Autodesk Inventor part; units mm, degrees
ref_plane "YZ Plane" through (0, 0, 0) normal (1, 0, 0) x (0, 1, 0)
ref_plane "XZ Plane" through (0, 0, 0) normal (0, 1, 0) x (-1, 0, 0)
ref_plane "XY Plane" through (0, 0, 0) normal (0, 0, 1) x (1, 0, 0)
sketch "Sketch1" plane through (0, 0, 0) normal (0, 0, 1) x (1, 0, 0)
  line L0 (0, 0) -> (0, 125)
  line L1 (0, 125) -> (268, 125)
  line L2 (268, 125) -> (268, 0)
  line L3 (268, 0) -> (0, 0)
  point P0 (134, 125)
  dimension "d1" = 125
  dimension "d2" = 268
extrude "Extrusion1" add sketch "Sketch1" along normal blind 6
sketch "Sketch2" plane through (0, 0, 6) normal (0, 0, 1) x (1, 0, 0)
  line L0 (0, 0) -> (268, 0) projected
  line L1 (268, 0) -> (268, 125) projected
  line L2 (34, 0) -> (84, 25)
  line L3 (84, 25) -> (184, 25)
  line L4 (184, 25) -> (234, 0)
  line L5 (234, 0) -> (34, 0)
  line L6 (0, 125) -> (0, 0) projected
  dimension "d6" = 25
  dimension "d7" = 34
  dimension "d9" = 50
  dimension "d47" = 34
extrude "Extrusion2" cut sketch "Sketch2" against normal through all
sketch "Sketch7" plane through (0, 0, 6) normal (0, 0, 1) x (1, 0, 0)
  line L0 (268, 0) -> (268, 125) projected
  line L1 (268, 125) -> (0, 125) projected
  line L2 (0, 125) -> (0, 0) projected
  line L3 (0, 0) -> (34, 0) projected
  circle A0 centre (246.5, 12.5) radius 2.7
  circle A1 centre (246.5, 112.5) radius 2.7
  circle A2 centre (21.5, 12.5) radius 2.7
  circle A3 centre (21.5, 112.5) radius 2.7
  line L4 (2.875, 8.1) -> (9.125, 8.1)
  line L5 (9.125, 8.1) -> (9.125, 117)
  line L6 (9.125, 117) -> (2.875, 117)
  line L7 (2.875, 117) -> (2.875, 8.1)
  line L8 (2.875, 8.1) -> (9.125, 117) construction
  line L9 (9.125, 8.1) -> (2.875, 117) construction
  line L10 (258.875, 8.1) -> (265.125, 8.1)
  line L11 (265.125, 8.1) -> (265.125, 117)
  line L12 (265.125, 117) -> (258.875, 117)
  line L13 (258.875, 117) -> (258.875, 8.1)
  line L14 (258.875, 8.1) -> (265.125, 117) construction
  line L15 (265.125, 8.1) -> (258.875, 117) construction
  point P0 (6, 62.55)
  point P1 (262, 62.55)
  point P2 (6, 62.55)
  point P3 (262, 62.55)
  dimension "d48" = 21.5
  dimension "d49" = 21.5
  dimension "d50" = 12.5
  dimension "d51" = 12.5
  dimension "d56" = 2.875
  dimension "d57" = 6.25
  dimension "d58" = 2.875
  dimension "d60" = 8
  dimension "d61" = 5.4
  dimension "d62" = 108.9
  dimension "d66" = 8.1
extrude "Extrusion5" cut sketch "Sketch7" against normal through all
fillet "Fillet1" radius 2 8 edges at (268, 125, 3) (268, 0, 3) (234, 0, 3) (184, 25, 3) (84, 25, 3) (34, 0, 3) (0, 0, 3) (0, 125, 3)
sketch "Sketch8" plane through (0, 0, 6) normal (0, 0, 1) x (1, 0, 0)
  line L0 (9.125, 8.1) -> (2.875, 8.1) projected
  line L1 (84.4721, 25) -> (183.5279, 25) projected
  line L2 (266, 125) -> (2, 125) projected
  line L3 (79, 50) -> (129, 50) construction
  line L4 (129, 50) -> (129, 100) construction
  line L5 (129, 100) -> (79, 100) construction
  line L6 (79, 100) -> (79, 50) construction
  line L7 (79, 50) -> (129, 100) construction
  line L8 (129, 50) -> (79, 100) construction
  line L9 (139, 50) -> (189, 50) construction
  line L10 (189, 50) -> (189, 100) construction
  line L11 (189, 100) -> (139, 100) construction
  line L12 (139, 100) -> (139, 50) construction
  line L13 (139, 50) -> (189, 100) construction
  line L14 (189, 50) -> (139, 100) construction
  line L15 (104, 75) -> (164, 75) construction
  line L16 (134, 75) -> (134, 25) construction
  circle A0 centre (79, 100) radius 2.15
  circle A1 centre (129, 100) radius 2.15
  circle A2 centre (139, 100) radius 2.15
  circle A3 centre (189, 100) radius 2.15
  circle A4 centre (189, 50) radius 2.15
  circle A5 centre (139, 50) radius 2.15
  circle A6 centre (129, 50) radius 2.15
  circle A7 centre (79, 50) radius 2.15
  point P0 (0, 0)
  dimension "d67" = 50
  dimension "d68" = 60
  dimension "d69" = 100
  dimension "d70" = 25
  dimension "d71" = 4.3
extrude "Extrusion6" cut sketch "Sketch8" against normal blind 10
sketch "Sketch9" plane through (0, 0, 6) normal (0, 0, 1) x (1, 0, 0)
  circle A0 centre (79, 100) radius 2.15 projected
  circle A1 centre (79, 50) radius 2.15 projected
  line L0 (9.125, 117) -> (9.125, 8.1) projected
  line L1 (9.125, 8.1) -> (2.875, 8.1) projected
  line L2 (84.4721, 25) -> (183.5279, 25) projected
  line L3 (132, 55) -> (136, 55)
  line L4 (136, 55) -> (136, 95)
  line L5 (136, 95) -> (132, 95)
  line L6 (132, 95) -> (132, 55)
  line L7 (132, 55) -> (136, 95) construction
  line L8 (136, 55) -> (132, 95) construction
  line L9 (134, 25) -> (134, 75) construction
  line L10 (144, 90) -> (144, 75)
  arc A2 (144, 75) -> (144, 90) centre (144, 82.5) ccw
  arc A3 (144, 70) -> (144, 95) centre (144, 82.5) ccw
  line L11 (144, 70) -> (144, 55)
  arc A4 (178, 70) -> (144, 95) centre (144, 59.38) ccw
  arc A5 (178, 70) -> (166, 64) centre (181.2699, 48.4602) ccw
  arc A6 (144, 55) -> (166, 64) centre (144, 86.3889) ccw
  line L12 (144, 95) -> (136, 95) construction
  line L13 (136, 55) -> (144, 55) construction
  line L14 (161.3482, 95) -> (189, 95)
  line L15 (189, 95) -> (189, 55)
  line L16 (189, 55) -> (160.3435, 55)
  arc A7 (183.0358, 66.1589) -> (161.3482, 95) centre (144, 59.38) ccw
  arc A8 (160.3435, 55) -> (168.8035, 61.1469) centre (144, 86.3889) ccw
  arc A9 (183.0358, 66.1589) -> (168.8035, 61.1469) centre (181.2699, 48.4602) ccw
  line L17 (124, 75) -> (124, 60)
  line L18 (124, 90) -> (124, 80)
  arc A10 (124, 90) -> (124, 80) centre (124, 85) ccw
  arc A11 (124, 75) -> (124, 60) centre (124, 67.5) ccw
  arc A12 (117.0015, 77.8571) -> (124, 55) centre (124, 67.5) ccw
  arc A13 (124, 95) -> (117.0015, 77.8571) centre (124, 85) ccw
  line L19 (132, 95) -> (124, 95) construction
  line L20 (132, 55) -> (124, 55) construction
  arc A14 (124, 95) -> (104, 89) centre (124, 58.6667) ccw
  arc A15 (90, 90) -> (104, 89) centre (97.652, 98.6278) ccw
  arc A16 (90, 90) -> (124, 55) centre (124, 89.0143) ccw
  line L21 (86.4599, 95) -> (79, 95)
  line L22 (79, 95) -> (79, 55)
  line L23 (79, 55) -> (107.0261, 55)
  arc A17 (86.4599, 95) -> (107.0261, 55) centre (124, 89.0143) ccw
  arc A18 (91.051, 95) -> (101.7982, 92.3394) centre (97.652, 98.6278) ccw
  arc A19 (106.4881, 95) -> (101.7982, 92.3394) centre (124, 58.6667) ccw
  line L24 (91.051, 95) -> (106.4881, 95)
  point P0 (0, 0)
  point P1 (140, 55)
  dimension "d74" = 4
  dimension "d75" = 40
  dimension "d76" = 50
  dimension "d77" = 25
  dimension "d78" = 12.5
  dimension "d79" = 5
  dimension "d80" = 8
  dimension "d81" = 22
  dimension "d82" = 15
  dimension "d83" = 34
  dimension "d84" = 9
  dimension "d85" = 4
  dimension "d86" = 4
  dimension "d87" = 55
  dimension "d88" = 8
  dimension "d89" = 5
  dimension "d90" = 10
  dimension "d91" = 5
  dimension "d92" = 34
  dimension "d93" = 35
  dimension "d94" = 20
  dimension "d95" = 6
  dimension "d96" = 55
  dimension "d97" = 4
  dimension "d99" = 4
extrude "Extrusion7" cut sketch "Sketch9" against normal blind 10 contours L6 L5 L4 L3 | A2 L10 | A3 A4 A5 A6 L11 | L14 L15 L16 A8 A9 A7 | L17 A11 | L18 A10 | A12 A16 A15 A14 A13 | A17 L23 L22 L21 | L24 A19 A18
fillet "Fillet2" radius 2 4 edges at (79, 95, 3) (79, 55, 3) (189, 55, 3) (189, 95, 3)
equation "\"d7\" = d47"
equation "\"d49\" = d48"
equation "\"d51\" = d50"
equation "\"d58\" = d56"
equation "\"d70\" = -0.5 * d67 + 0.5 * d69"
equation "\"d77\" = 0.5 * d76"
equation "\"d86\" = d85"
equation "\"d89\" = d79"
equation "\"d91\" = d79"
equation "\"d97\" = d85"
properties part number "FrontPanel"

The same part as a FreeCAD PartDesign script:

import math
import FreeCAD as App
import Part
import Sketcher
from FreeCAD import Vector


def edges_at(feature, points):
    """Names of the edges that pass closest to the given points."""
    edges = feature.Shape.Edges
    near = lambda p: min(range(len(edges)), key=lambda i: edges[i].distToShape(Part.Vertex(*p))[0])
    return sorted({f"Edge{near(p) + 1}" for p in points})


def add_polygon(sketch, points):
    """Adds a closed chain of lines whose ends are joined by coincident constraints."""
    first, n = sketch.GeometryCount, len(points)
    for a, b in zip(points, points[1:] + points[:1]):
        sketch.addGeometry(Part.LineSegment(App.Vector(*a, 0), App.Vector(*b, 0)), False)
    for i in range(n):
        sketch.addConstraint(Sketcher.Constraint("Coincident", first + i, 2, first + (i + 1) % n, 1))

doc = App.newDocument("Part")
body = doc.addObject("PartDesign::Body", "Body")

# Sketch on XY plane
sketch1 = doc.addObject("Sketcher::SketchObject", "Sketch")
body.addObject(sketch1)
sketch1.AttachmentSupport = (doc.XY_Plane, [""])
sketch1.MapMode = "FlatFace"
add_polygon(sketch1, [(0, 125), (0, 0), (268, 0), (268, 125)])  # lines 0-3
sketch1.addConstraint([
    Sketcher.Constraint("Vertical", 0),
    Sketcher.Constraint("Horizontal", 1),
    Sketcher.Constraint("Vertical", 2),
    Sketcher.Constraint("Horizontal", 3),
    Sketcher.Constraint("Coincident", 0, 2, -1, 1),
    Sketcher.Constraint("DistanceX", 1, 1, 1, 2, 268.0),
    Sketcher.Constraint("DistanceY", 0, 2, 0, 1, 125.0),
])
pad1 = doc.addObject("PartDesign::Pad", "Pad")
body.addObject(pad1)
pad1.Profile = sketch1
pad1.Length = 6

# Sketch on XY plane
sketch2 = doc.addObject("Sketcher::SketchObject", "Sketch001")
body.addObject(sketch2)
sketch2.AttachmentSupport = (doc.XY_Plane, [""])
sketch2.MapMode = "FlatFace"
sketch2.AttachmentOffset = App.Placement(Vector(0, 0, 6), App.Rotation())
add_polygon(sketch2, [(84, 25), (34, 0), (234, 0), (184, 25)])  # lines 0-3
sketch2.addConstraint([
    Sketcher.Constraint("Horizontal", 1),
    Sketcher.Constraint("Horizontal", 3),
    Sketcher.Constraint("PointOnObject", 0, 2, -1),
    Sketcher.Constraint("Equal", 0, 2),
    Sketcher.Constraint("DistanceX", -1, 1, 0, 2, 34.0),
    Sketcher.Constraint("DistanceY", -1, 1, 2, 2, 25.0),
    Sketcher.Constraint("DistanceX", 2, 2, 1, 2, 50.0),
    Sketcher.Constraint("DistanceX", 1, 1, 1, 2, 200.0),
])
pocket1 = doc.addObject("PartDesign::Pocket", "Pocket")
body.addObject(pocket1)
pocket1.Profile = sketch2
pocket1.Type = "ThroughAll"

# Sketch on XY plane
sketch3 = doc.addObject("Sketcher::SketchObject", "Sketch002")
body.addObject(sketch3)
sketch3.AttachmentSupport = (doc.XY_Plane, [""])
sketch3.MapMode = "FlatFace"
sketch3.AttachmentOffset = App.Placement(Vector(0, 0, 6), App.Rotation())
sketch3.addGeometry(Part.Circle(Vector(246.5, 12.5, 0), Vector(0, 0, 1), 2.7), False)  # 0
sketch3.addGeometry(Part.Circle(Vector(246.5, 112.5, 0), Vector(0, 0, 1), 2.7), False)  # 1
sketch3.addGeometry(Part.Circle(Vector(21.5, 12.5, 0), Vector(0, 0, 1), 2.7), False)  # 2
sketch3.addGeometry(Part.Circle(Vector(21.5, 112.5, 0), Vector(0, 0, 1), 2.7), False)  # 3
add_polygon(sketch3, [(2.9, 117), (2.9, 8.1), (9.1, 8.1), (9.1, 117)])  # lines 4-7
add_polygon(sketch3, [(258.9, 117), (258.9, 8.1), (265.1, 8.1), (265.1, 117)])  # lines 8-11
sketch3.addConstraint([
    Sketcher.Constraint("Vertical", 4),
    Sketcher.Constraint("Horizontal", 5),
    Sketcher.Constraint("Vertical", 6),
    Sketcher.Constraint("Horizontal", 7),
    Sketcher.Constraint("Vertical", 8),
    Sketcher.Constraint("Horizontal", 9),
    Sketcher.Constraint("Vertical", 10),
    Sketcher.Constraint("Horizontal", 11),
    Sketcher.Constraint("Equal", 0, 1),
    Sketcher.Constraint("Equal", 1, 2),
    Sketcher.Constraint("Equal", 2, 3),
    Sketcher.Constraint("Horizontal", 0, 3, 2, 3),
    Sketcher.Constraint("Horizontal", 1, 3, 3, 3),
    Sketcher.Constraint("Horizontal", 5, 2, 8, 2),
    Sketcher.Constraint("Horizontal", 7, 2, 10, 2),
    Sketcher.Constraint("Vertical", 0, 3, 1, 3),
    Sketcher.Constraint("Vertical", 2, 3, 3, 3),
    Sketcher.Constraint("Equal", 7, 9),
    Sketcher.Constraint("Diameter", 0, 5.4),
    Sketcher.Constraint("DistanceY", 4, 2, 4, 1, 108.9),
    Sketcher.Constraint("DistanceX", 5, 1, 5, 2, 6.25),
    Sketcher.Constraint("DistanceY", -1, 1, 0, 3, 12.5),
    Sketcher.Constraint("DistanceX", -1, 1, 2, 3, 21.5),
    Sketcher.Constraint("DistanceY", -1, 1, 4, 2, 8.1),
    Sketcher.Constraint("DistanceX", -1, 1, 4, 2, 2.875),
    Sketcher.Constraint("DistanceY", 0, 3, 1, 3, 100.0),
    Sketcher.Constraint("DistanceX", 2, 3, 0, 3, 225.0),
    Sketcher.Constraint("DistanceX", 4, 2, 8, 2, 256.0),
])
pocket2 = doc.addObject("PartDesign::Pocket", "Pocket001")
body.addObject(pocket2)
pocket2.Profile = sketch3
pocket2.Type = "ThroughAll"
doc.recompute()

fillet = doc.addObject("PartDesign::Fillet", "Fillet")
body.addObject(fillet)
fillet.Base = (pocket2, edges_at(pocket2, [
    (268, 125, 3),
    (268, 0, 3),
    (234, 0, 3),
    (184, 25, 3),
    (84, 25, 3),
    (34, 0, 3),
    (0, 0, 3),
    (0, 125, 3),
]))
fillet.Radius = 2

# Sketch on XY plane
sketch4 = doc.addObject("Sketcher::SketchObject", "Sketch003")
body.addObject(sketch4)
sketch4.AttachmentSupport = (doc.XY_Plane, [""])
sketch4.MapMode = "FlatFace"
sketch4.AttachmentOffset = App.Placement(Vector(0, 0, 6), App.Rotation())
sketch4.addGeometry([
    Part.Circle(Vector(79, 100, 0), Vector(0, 0, 1), 2.1),  # 0
    Part.Circle(Vector(129, 100, 0), Vector(0, 0, 1), 2.1),  # 1
    Part.Circle(Vector(139, 100, 0), Vector(0, 0, 1), 2.1),  # 2
    Part.Circle(Vector(189, 100, 0), Vector(0, 0, 1), 2.1),  # 3
    Part.Circle(Vector(189, 50, 0), Vector(0, 0, 1), 2.1),  # 4
    Part.Circle(Vector(139, 50, 0), Vector(0, 0, 1), 2.1),  # 5
    Part.Circle(Vector(129, 50, 0), Vector(0, 0, 1), 2.1),  # 6
    Part.Circle(Vector(79, 50, 0), Vector(0, 0, 1), 2.1),  # 7
], False)
sketch4.addConstraint([
    Sketcher.Constraint("Equal", 0, 1),
    Sketcher.Constraint("Equal", 1, 2),
    Sketcher.Constraint("Equal", 2, 3),
    Sketcher.Constraint("Equal", 3, 4),
    Sketcher.Constraint("Equal", 4, 5),
    Sketcher.Constraint("Equal", 5, 6),
    Sketcher.Constraint("Equal", 6, 7),
    Sketcher.Constraint("Horizontal", 0, 3, 1, 3),
    Sketcher.Constraint("Horizontal", 1, 3, 2, 3),
    Sketcher.Constraint("Horizontal", 2, 3, 3, 3),
    Sketcher.Constraint("Horizontal", 4, 3, 5, 3),
    Sketcher.Constraint("Horizontal", 5, 3, 6, 3),
    Sketcher.Constraint("Horizontal", 6, 3, 7, 3),
    Sketcher.Constraint("Vertical", 3, 3, 4, 3),
    Sketcher.Constraint("Vertical", 2, 3, 5, 3),
    Sketcher.Constraint("Vertical", 1, 3, 6, 3),
    Sketcher.Constraint("Vertical", 0, 3, 7, 3),
    Sketcher.Constraint("Diameter", 0, 4.3),
    Sketcher.Constraint("DistanceY", -1, 1, 0, 3, 100.0),
    Sketcher.Constraint("DistanceY", -1, 1, 4, 3, 50.0),
    Sketcher.Constraint("DistanceX", 0, 3, 1, 3, 50.0),
    Sketcher.Constraint("DistanceX", 0, 3, 2, 3, 60.0),
    Sketcher.Constraint("DistanceX", 2, 3, 3, 3, 50.0),
    Sketcher.Constraint("DistanceX", -1, 1, 0, 3, 79.0),
])
pocket3 = doc.addObject("PartDesign::Pocket", "Pocket002")
body.addObject(pocket3)
pocket3.Profile = sketch4
pocket3.Length = 10

# Sketch on XY plane
sketch5 = doc.addObject("Sketcher::SketchObject", "Sketch004")
body.addObject(sketch5)
sketch5.AttachmentSupport = (doc.XY_Plane, [""])
sketch5.MapMode = "FlatFace"
sketch5.AttachmentOffset = App.Placement(Vector(0, 0, 6), App.Rotation())
add_polygon(sketch5, [(132, 95), (132, 55), (136, 55), (136, 95)])  # lines 0-3
sketch5.addGeometry(Part.ArcOfCircle(Part.Circle(Vector(144, 82.5, 0), Vector(0, 0, 1), 7.5), math.radians(-90), math.radians(90)), False)  # 4
sketch5.addGeometry(Part.LineSegment(Vector(144, 90, 0), Vector(144, 75, 0)), False)  # 5
sketch5.addGeometry(Part.ArcOfCircle(Part.Circle(Vector(144, 82.5, 0), Vector(0, 0, 1), 12.5), math.radians(-90), math.radians(90)), False)  # 6
sketch5.addGeometry(Part.LineSegment(Vector(144, 70, 0), Vector(144, 55, 0)), False)  # 7
sketch5.addGeometry(Part.ArcOfCircle(Part.Circle(Vector(144, 86.4, 0), Vector(0, 0, 1), 31.4), math.radians(-90), math.radians(-46)), False)  # 8
sketch5.addGeometry(Part.ArcOfCircle(Part.Circle(Vector(181.3, 48.5, 0), Vector(0, 0, 1), 21.8), math.radians(99), math.radians(134)), False)  # 9
sketch5.addGeometry(Part.ArcOfCircle(Part.Circle(Vector(144, 59.4, 0), Vector(0, 0, 1), 35.6), math.radians(17), math.radians(90)), False)  # 10
sketch5.addGeometry(Part.LineSegment(Vector(189, 95, 0), Vector(161.3, 95, 0)), False)  # 11
sketch5.addGeometry(Part.ArcOfCircle(Part.Circle(Vector(144, 59.4, 0), Vector(0, 0, 1), 39.6), math.radians(10), math.radians(64)), False)  # 12
sketch5.addGeometry(Part.ArcOfCircle(Part.Circle(Vector(181.3, 48.5, 0), Vector(0, 0, 1), 17.8), math.radians(84), math.radians(134)), False)  # 13
sketch5.addGeometry(Part.ArcOfCircle(Part.Circle(Vector(144, 86.4, 0), Vector(0, 0, 1), 35.4), math.radians(-62.5), math.radians(-45.5)), False)  # 14
sketch5.addGeometry(Part.LineSegment(Vector(160.3, 55, 0), Vector(189, 55, 0)), False)  # 15
sketch5.addGeometry(Part.LineSegment(Vector(189, 55, 0), Vector(189, 95, 0)), False)  # 16
sketch5.addGeometry(Part.LineSegment(Vector(124, 60, 0), Vector(124, 75, 0)), False)  # 17
sketch5.addGeometry(Part.ArcOfCircle(Part.Circle(Vector(124, 67.5, 0), Vector(0, 0, 1), 7.5), math.radians(90), math.radians(270)), False)  # 18
sketch5.addGeometry(Part.LineSegment(Vector(124, 80, 0), Vector(124, 90, 0)), False)  # 19
sketch5.addGeometry(Part.ArcOfCircle(Part.Circle(Vector(124, 85, 0), Vector(0, 0, 1), 5), math.radians(90), math.radians(270)), False)  # 20
sketch5.addGeometry(Part.ArcOfCircle(Part.Circle(Vector(124, 67.5, 0), Vector(0, 0, 1), 12.5), math.radians(124), math.radians(270)), False)  # 21
sketch5.addGeometry(Part.ArcOfCircle(Part.Circle(Vector(124, 85, 0), Vector(0, 0, 1), 10), math.radians(90), math.radians(226)), False)  # 22
sketch5.addGeometry(Part.ArcOfCircle(Part.Circle(Vector(124, 58.7, 0), Vector(0, 0, 1), 36.3), math.radians(90), math.radians(123)), False)  # 23
sketch5.addGeometry(Part.ArcOfCircle(Part.Circle(Vector(97.7, 98.6, 0), Vector(0, 0, 1), 11.5), math.radians(-132), math.radians(-57)), False)  # 24
sketch5.addGeometry(Part.ArcOfCircle(Part.Circle(Vector(124, 89, 0), Vector(0, 0, 1), 34), math.radians(178), math.radians(270)), False)  # 25
sketch5.addGeometry(Part.ArcOfCircle(Part.Circle(Vector(124, 89, 0), Vector(0, 0, 1), 38), math.radians(171), math.radians(243)), False)  # 26
sketch5.addGeometry(Part.LineSegment(Vector(86.5, 95, 0), Vector(79, 95, 0)), False)  # 27
sketch5.addGeometry(Part.LineSegment(Vector(79, 95, 0), Vector(79, 55, 0)), False)  # 28
sketch5.addGeometry(Part.LineSegment(Vector(79, 55, 0), Vector(107, 55, 0)), False)  # 29
sketch5.addGeometry(Part.LineSegment(Vector(106.5, 95, 0), Vector(91.1, 95, 0)), False)  # 30
sketch5.addGeometry(Part.ArcOfCircle(Part.Circle(Vector(97.7, 98.6, 0), Vector(0, 0, 1), 7.5), math.radians(-151), math.radians(-57)), False)  # 31
sketch5.addGeometry(Part.ArcOfCircle(Part.Circle(Vector(124, 58.7, 0), Vector(0, 0, 1), 40.3), math.radians(115.73), math.radians(123.4)), False)  # 32
sketch5.addConstraint([
    Sketcher.Constraint("Coincident", 4, 1, 5, 2),
    Sketcher.Constraint("Coincident", 5, 1, 4, 2),
    Sketcher.Constraint("Coincident", 6, 1, 7, 1),
    Sketcher.Constraint("Coincident", 7, 2, 8, 1),
    Sketcher.Constraint("Tangent", 8, 2, 9, 2),
    Sketcher.Constraint("Coincident", 9, 1, 10, 1),
    Sketcher.Constraint("Tangent", 10, 2, 6, 2),
    Sketcher.Constraint("Coincident", 11, 2, 12, 2),
    Sketcher.Constraint("Coincident", 12, 1, 13, 1),
    Sketcher.Constraint("Tangent", 13, 2, 14, 2),
    Sketcher.Constraint("Coincident", 14, 1, 15, 1),
    Sketcher.Constraint("Coincident", 15, 2, 16, 1),
    Sketcher.Constraint("Coincident", 16, 2, 11, 1),
    Sketcher.Constraint("Coincident", 17, 1, 18, 2),
    Sketcher.Constraint("Coincident", 18, 1, 17, 2),
    Sketcher.Constraint("Coincident", 19, 1, 20, 2),
    Sketcher.Constraint("Coincident", 20, 1, 19, 2),
    Sketcher.Constraint("Coincident", 21, 1, 22, 2),
    Sketcher.Constraint("Tangent", 22, 1, 23, 1),
    Sketcher.Constraint("Tangent", 23, 2, 24, 2),
    Sketcher.Constraint("Coincident", 24, 1, 25, 1),
    Sketcher.Constraint("Tangent", 25, 2, 21, 2),
    Sketcher.Constraint("Coincident", 26, 1, 27, 1),
    Sketcher.Constraint("Coincident", 27, 2, 28, 1),
    Sketcher.Constraint("Coincident", 28, 2, 29, 1),
    Sketcher.Constraint("Coincident", 29, 2, 26, 2),
    Sketcher.Constraint("Coincident", 30, 2, 31, 1),
    Sketcher.Constraint("Tangent", 31, 2, 32, 2),
    Sketcher.Constraint("Coincident", 32, 1, 30, 1),
    Sketcher.Constraint("Vertical", 0),
    Sketcher.Constraint("Horizontal", 1),
    Sketcher.Constraint("Vertical", 2),
    Sketcher.Constraint("Horizontal", 3),
    Sketcher.Constraint("Vertical", 5),
    Sketcher.Constraint("Vertical", 7),
    Sketcher.Constraint("Horizontal", 11),
    Sketcher.Constraint("Horizontal", 15),
    Sketcher.Constraint("Vertical", 16),
    Sketcher.Constraint("Vertical", 17),
    Sketcher.Constraint("Vertical", 19),
    Sketcher.Constraint("Horizontal", 27),
    Sketcher.Constraint("Vertical", 28),
    Sketcher.Constraint("Horizontal", 29),
    Sketcher.Constraint("Horizontal", 30),
    Sketcher.Constraint("Coincident", 6, 3, 4, 3),
    Sketcher.Constraint("Coincident", 12, 3, 10, 3),
    Sketcher.Constraint("Coincident", 13, 3, 9, 3),
    Sketcher.Constraint("Coincident", 14, 3, 8, 3),
    Sketcher.Constraint("Coincident", 21, 3, 18, 3),
    Sketcher.Constraint("Coincident", 22, 3, 20, 3),
    Sketcher.Constraint("Coincident", 26, 3, 25, 3),
    Sketcher.Constraint("Coincident", 31, 3, 24, 3),
    Sketcher.Constraint("Equal", 4, 18),
    Sketcher.Constraint("Equal", 6, 21),
    Sketcher.Constraint("Horizontal", 1, 2, 7, 2),
    Sketcher.Constraint("Horizontal", 6, 1, 9, 1),
    Sketcher.Constraint("Horizontal", 3, 2, 10, 2),
    Sketcher.Constraint("Horizontal", 10, 2, 11, 2),
    Sketcher.Constraint("Horizontal", 7, 2, 14, 1),
    Sketcher.Constraint("Horizontal", 4, 1, 18, 1),
    Sketcher.Constraint("Horizontal", 5, 1, 20, 1),
    Sketcher.Constraint("Horizontal", 16, 2, 22, 1),
    Sketcher.Constraint("Horizontal", 20, 1, 24, 1),
    Sketcher.Constraint("Horizontal", 15, 2, 25, 2),
    Sketcher.Constraint("Horizontal", 22, 1, 26, 1),
    Sketcher.Constraint("Horizontal", 25, 2, 28, 2),
    Sketcher.Constraint("Horizontal", 27, 2, 30, 2),
    Sketcher.Constraint("Vertical", 6, 3, 8, 3),
    Sketcher.Constraint("Vertical", 8, 3, 10, 3),
    Sketcher.Constraint("Vertical", 18, 3, 20, 3),
    Sketcher.Constraint("Vertical", 22, 3, 23, 3),
    Sketcher.Constraint("Vertical", 23, 3, 25, 3),
    Sketcher.Constraint("Vertical", 14, 3, 4, 1),
    Sketcher.Constraint("Vertical", 5, 1, 6, 1),
    Sketcher.Constraint("Vertical", 26, 3, 17, 1),
    Sketcher.Constraint("Vertical", 18, 1, 19, 1),
    Sketcher.Constraint("Radius", 20, 5.0),
    Sketcher.Constraint("Radius", 22, 10.0),
    Sketcher.Constraint("Radius", 4, 7.5),
    Sketcher.Constraint("DistanceX", 1, 1, 1, 2, 4.0),
    Sketcher.Constraint("DistanceY", -1, 1, 0, 2, 55.0),
    Sketcher.Constraint("DistanceX", 18, 3, 10, 3, 20.0),
    Sketcher.Constraint("DistanceX", 23, 3, 0, 2, 8.0),
    Sketcher.Constraint("DistanceX", 10, 3, 8, 2, 22.0),
    Sketcher.Constraint("DistanceY", 8, 2, 6, 1, 6.0),
    Sketcher.Constraint("DistanceX", 6, 1, 9, 1, 34.0),
    Sketcher.Constraint("DistanceX", 23, 2, 25, 3, 20.0),
    Sketcher.Constraint("DistanceX", 24, 1, 20, 1, 34.0),
    Sketcher.Constraint("DistanceY", 23, 2, 26, 1, 6.0),
    Sketcher.Constraint("DistanceX", 27, 2, 23, 2, 25.0),
    Sketcher.Constraint("Radius", 12, 39.62),
    Sketcher.Constraint("DistanceX", -1, 1, 4, 3, 144.0),
    Sketcher.Constraint("DistanceX", -1, 1, 15, 2, 189.0),
    Sketcher.Constraint("Radius", 14, 35.389),
    Sketcher.Constraint("DistanceX", 27, 2, 27, 1, 7.46),
    Sketcher.Constraint("Radius", 31, 7.5322),
    Sketcher.Constraint("Radius", 32, 40.3203),
    Sketcher.Constraint("DistanceX", 30, 2, 30, 1, 15.437),
])
pocket4 = doc.addObject("PartDesign::Pocket", "Pocket003")
body.addObject(pocket4)
pocket4.Profile = sketch5
pocket4.Length = 10
doc.recompute()

fillet2 = doc.addObject("PartDesign::Fillet", "Fillet001")
body.addObject(fillet2)
fillet2.Base = (pocket4, edges_at(pocket4, [
    (79, 95, 3),
    (79, 55, 3),
    (189, 55, 3),
    (189, 95, 3),
]))
fillet2.Radius = 2

doc.recompute()
